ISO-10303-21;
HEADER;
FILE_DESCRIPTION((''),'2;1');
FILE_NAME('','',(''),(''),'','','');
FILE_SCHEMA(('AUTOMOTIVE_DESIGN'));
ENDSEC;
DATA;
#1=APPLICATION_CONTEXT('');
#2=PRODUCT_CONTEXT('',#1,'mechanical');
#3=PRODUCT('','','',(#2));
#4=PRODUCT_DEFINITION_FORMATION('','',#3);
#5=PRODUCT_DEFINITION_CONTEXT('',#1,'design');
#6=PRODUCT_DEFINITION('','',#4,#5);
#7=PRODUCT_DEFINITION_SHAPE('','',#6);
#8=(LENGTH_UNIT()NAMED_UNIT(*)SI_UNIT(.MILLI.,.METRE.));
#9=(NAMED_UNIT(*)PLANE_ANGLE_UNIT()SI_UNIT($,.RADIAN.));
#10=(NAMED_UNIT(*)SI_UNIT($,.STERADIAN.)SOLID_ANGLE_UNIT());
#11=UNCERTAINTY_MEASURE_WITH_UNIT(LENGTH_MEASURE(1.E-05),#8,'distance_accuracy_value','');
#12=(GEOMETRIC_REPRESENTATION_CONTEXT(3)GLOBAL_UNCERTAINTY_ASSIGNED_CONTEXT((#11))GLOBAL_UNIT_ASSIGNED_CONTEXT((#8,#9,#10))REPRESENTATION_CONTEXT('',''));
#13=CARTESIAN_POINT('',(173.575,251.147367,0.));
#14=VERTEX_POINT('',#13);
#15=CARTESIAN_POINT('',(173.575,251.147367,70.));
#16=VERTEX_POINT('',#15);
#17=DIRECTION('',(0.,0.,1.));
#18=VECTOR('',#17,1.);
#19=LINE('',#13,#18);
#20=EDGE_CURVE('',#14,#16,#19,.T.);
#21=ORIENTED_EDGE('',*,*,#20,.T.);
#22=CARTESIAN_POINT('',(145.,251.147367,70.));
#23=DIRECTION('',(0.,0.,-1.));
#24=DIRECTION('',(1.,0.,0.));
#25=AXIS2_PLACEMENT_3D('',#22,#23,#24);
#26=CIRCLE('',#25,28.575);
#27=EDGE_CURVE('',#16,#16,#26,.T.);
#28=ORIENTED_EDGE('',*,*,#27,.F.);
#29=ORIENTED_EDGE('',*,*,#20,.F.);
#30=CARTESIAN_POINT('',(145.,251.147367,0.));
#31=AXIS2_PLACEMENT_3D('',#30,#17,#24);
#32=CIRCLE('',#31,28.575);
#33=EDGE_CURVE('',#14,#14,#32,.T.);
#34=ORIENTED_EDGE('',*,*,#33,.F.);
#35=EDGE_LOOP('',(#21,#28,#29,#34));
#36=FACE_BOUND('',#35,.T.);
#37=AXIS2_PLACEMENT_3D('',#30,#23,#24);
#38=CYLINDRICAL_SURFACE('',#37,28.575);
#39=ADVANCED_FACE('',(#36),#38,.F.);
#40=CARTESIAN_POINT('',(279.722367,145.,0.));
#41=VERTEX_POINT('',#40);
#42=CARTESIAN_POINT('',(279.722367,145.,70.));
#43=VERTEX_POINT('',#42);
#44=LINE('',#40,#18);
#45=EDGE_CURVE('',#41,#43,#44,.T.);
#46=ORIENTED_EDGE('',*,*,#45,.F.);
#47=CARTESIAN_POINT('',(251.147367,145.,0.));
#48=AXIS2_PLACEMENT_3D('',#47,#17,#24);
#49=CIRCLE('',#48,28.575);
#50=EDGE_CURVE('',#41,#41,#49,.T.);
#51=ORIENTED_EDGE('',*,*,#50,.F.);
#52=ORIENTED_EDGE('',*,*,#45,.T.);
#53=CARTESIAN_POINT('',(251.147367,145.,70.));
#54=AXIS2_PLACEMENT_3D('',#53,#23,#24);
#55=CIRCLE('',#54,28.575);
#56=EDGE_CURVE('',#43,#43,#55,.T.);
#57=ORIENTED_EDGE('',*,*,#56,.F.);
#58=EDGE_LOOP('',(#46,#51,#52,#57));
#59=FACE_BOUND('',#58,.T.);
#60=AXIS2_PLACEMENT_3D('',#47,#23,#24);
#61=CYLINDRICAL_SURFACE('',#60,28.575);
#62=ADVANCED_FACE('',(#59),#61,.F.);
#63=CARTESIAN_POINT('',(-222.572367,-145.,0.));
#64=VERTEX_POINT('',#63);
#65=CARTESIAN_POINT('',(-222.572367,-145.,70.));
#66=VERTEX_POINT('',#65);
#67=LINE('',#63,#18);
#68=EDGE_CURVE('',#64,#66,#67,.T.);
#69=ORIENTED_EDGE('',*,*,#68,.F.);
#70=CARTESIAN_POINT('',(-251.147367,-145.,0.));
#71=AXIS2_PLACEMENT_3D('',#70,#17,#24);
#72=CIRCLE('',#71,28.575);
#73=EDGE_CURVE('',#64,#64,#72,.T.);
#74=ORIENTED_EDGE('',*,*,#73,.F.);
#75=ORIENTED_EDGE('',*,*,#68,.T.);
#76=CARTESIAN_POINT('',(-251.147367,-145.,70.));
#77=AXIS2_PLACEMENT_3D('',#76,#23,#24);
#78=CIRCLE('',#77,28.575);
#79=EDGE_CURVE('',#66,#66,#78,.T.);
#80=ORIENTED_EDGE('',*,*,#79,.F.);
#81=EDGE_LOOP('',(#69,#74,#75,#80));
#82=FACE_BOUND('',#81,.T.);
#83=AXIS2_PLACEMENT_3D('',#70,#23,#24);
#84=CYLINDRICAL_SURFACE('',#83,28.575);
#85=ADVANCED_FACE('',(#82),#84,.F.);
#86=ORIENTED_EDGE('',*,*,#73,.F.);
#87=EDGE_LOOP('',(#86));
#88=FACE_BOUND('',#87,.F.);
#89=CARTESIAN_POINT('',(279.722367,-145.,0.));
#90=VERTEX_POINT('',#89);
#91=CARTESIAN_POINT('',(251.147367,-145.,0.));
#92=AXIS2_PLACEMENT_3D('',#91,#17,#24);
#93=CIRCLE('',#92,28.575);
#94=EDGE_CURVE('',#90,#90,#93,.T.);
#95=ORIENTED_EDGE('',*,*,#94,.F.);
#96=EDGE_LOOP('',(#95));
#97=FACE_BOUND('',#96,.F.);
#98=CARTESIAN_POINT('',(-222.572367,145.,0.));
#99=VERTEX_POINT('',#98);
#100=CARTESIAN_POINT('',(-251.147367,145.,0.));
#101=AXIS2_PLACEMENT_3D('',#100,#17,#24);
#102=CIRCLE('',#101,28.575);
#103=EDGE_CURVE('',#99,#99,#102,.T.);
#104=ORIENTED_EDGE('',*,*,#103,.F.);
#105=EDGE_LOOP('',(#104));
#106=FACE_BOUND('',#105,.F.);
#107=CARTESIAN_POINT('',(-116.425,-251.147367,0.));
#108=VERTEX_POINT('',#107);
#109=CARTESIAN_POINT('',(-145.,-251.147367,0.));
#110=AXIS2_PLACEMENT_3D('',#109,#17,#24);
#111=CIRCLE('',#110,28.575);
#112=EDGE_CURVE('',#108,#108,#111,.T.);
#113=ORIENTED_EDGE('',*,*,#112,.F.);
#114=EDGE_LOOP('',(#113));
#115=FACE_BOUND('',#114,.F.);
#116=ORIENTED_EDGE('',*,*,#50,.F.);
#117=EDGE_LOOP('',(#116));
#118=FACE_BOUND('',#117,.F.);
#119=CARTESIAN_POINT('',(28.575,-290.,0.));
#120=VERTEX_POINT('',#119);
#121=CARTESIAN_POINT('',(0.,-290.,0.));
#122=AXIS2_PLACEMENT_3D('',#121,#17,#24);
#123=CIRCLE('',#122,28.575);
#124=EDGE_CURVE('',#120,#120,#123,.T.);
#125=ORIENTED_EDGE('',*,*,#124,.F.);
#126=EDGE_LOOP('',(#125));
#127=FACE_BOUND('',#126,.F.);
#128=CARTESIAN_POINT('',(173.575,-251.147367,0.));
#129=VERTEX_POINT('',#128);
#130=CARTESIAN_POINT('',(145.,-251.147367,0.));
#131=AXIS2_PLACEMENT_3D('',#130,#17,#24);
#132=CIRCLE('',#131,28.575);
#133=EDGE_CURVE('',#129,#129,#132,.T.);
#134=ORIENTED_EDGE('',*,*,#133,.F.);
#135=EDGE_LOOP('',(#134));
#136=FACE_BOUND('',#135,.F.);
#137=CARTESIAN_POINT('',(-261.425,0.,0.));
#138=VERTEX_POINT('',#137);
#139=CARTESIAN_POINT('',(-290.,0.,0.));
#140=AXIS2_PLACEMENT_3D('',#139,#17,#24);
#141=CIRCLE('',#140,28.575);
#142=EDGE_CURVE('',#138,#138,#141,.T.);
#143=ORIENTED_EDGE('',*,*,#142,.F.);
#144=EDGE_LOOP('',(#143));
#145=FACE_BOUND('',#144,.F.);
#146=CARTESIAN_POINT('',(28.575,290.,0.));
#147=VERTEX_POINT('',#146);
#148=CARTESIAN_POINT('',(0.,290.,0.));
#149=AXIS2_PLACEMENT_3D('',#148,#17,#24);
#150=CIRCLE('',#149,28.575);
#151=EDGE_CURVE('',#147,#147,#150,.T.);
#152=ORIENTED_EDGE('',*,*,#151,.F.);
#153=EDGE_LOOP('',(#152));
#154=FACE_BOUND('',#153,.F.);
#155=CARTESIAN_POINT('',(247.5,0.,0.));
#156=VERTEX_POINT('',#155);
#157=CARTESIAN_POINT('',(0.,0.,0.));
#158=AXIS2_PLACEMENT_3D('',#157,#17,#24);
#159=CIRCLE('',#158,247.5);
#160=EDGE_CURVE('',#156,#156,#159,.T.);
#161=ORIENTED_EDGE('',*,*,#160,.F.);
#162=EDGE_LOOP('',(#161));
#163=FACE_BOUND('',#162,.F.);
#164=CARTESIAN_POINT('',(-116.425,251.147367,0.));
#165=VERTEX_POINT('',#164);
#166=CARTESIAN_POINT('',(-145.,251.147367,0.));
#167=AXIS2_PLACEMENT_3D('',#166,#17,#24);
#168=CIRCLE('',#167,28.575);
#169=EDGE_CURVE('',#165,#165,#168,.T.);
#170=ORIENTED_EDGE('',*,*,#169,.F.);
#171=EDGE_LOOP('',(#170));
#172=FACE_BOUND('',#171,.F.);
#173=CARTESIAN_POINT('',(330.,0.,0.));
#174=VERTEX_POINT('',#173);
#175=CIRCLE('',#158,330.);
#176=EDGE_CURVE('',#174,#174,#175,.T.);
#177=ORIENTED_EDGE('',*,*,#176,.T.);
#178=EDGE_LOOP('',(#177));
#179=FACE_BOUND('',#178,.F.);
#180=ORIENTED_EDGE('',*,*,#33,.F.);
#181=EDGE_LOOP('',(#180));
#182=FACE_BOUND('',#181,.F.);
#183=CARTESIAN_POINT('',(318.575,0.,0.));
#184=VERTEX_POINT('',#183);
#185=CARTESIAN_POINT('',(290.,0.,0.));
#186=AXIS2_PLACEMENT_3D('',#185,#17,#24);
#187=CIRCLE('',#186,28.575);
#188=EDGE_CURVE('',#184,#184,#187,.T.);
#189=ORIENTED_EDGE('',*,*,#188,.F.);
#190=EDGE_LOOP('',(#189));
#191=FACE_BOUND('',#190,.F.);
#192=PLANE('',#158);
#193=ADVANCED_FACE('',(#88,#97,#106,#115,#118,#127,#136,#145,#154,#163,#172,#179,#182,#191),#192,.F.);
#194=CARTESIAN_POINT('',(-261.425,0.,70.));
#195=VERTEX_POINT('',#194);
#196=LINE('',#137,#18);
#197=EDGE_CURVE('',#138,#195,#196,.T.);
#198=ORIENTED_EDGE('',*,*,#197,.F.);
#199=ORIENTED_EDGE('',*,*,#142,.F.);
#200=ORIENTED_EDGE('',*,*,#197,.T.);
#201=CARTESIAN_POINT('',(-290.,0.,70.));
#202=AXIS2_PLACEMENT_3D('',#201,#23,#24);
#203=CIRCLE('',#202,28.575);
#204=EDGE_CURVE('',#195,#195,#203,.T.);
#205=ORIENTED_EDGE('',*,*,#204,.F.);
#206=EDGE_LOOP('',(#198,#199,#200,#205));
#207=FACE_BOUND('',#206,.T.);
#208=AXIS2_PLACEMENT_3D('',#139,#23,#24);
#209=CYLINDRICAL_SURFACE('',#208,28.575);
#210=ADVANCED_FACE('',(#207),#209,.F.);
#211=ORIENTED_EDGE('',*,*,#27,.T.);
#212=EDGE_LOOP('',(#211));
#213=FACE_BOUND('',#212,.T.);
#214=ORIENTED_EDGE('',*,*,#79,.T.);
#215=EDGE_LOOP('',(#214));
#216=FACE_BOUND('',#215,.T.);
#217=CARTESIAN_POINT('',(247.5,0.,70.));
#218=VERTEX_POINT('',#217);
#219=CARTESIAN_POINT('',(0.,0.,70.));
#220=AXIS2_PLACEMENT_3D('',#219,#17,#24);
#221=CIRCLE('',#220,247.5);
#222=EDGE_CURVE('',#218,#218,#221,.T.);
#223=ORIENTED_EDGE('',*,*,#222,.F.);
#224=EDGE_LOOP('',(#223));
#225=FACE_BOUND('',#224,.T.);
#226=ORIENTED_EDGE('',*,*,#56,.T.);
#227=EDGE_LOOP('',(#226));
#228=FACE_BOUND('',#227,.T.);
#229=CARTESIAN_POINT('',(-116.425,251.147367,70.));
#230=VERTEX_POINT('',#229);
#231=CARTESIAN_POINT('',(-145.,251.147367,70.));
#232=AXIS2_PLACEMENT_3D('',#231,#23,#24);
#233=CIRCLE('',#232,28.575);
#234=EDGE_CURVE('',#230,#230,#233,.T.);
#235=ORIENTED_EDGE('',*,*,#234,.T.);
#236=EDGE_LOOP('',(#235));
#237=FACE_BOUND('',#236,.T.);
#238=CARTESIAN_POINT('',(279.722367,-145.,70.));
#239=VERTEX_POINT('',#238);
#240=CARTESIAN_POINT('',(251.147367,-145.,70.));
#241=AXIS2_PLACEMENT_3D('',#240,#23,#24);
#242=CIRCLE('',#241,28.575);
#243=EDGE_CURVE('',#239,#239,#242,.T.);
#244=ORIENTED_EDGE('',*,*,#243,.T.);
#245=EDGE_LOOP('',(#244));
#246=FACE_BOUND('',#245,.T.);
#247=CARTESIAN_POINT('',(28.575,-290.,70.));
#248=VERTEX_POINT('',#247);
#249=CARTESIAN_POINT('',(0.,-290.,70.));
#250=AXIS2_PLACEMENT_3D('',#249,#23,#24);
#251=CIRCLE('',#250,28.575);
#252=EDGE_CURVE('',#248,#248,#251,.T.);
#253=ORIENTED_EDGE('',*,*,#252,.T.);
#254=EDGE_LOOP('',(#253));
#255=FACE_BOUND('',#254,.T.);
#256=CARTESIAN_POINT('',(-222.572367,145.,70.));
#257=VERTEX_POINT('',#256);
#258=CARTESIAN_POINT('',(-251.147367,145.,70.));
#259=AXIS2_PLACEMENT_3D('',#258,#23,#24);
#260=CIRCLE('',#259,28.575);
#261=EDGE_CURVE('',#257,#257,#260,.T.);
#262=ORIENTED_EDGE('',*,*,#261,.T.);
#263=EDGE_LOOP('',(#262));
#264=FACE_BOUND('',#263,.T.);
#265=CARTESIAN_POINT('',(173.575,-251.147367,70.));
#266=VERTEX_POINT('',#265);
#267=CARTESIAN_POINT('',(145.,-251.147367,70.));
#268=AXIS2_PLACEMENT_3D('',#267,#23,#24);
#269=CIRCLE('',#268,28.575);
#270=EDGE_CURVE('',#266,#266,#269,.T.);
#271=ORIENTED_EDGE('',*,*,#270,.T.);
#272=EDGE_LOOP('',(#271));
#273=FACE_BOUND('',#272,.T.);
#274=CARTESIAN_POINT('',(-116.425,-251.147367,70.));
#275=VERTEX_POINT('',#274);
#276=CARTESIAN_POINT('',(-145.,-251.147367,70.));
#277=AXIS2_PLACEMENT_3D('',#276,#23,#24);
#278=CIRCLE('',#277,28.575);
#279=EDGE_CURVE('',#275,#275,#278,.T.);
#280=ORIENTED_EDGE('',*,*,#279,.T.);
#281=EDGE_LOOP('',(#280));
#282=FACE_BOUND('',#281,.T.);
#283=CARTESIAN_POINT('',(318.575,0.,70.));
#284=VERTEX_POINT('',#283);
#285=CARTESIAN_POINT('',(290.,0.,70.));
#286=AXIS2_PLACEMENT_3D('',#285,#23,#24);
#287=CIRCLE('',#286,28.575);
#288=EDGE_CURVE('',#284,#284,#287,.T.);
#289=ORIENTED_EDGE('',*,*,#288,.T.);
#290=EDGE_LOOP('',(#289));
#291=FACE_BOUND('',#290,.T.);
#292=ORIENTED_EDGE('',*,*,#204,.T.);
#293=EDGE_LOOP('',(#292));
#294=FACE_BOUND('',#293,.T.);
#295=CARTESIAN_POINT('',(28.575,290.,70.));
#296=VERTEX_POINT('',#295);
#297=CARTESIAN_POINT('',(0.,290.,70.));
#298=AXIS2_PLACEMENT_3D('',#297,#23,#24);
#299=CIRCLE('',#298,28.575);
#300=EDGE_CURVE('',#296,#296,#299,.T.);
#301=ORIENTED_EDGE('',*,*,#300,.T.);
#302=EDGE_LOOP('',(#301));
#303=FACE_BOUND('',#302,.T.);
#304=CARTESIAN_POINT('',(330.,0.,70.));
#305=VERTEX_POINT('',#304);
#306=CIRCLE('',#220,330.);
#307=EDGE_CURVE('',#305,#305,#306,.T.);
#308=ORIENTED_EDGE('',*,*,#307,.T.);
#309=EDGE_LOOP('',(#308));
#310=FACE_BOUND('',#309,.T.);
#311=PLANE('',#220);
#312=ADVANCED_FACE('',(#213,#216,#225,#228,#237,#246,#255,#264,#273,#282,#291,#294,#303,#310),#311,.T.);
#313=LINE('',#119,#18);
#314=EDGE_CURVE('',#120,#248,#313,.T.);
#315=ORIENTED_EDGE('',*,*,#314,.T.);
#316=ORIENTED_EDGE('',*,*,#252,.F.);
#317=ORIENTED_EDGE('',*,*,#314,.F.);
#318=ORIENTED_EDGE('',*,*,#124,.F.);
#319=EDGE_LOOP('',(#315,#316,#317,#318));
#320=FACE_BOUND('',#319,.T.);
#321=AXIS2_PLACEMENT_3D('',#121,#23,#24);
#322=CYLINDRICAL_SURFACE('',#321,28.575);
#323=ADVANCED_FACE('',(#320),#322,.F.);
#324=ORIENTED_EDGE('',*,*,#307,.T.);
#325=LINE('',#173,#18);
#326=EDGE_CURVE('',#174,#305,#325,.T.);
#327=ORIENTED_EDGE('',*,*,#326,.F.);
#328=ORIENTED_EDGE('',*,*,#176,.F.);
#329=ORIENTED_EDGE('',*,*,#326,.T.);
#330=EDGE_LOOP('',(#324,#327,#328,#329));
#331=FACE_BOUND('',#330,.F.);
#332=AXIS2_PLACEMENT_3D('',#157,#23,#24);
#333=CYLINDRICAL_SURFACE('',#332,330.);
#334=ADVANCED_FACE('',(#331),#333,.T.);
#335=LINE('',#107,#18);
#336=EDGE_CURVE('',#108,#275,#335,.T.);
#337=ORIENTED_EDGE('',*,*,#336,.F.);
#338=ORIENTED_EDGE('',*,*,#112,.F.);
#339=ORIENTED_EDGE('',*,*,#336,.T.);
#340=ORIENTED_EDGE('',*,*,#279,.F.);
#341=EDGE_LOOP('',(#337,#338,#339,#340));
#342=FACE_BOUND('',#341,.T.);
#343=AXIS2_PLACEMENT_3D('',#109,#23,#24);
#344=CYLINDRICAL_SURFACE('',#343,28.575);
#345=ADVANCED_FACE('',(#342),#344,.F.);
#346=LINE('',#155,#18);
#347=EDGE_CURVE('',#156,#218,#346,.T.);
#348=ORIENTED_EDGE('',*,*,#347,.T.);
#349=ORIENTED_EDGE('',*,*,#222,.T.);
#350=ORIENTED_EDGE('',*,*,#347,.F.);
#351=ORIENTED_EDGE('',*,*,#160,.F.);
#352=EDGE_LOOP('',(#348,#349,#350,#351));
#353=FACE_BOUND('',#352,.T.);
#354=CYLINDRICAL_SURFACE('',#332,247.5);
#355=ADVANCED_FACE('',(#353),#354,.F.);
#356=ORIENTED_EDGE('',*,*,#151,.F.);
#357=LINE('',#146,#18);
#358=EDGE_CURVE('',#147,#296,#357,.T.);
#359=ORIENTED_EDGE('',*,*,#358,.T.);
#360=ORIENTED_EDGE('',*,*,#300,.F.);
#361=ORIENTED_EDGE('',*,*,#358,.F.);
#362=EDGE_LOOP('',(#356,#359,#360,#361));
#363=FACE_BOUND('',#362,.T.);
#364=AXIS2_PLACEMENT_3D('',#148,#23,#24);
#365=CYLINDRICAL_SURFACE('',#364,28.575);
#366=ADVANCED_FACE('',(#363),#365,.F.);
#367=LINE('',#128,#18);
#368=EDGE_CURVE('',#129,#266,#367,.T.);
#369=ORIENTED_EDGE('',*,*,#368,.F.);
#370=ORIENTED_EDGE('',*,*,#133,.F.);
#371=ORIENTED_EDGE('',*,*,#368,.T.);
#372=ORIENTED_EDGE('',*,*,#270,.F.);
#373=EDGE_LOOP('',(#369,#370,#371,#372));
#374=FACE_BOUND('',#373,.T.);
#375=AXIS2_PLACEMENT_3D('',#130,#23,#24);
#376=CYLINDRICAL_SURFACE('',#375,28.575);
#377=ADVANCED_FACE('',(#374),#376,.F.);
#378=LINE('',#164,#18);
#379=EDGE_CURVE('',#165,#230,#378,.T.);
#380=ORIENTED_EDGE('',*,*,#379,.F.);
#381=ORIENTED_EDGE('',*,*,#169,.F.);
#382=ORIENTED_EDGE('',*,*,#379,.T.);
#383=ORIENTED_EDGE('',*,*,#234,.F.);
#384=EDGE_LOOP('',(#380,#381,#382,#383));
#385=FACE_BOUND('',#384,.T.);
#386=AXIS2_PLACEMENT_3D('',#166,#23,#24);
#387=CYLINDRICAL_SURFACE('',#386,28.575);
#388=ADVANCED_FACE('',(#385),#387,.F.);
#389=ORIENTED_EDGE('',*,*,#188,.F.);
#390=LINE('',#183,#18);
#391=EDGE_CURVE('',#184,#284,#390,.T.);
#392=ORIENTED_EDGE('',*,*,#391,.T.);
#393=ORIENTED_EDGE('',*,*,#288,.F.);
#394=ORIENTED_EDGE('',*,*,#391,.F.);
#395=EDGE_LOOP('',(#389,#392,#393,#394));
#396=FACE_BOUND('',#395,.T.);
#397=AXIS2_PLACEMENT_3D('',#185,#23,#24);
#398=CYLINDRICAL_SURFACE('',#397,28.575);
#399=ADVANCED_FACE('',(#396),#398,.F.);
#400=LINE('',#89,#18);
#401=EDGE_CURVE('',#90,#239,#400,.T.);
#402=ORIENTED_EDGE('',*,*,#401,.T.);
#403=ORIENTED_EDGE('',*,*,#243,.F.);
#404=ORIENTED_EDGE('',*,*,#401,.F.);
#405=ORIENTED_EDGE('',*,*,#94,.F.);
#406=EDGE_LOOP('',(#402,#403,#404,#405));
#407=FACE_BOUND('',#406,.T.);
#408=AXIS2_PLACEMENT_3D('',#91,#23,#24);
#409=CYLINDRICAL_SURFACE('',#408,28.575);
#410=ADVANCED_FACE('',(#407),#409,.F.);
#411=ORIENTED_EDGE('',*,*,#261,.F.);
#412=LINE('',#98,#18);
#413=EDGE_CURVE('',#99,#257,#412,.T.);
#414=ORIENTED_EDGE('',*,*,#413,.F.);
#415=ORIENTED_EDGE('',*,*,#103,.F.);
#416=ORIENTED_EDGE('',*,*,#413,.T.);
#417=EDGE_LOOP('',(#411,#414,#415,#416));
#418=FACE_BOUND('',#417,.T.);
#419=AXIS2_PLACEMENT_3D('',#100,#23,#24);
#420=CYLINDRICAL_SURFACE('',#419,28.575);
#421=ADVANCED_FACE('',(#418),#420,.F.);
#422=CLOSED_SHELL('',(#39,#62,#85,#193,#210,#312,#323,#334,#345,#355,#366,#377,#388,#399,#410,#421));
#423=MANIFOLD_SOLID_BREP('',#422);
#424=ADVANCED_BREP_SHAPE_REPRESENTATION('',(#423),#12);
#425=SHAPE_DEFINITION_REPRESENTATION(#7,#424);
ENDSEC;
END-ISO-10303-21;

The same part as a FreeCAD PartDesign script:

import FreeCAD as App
import Part
import Sketcher

doc = App.newDocument("Part")
body = doc.addObject("PartDesign::Body", "Body")

# Sketch on XY plane
sketch1 = doc.addObject("Sketcher::SketchObject", "Sketch")
body.addObject(sketch1)
sketch1.AttachmentSupport = (doc.XY_Plane, [""])
sketch1.MapMode = "FlatFace"
sketch1.addGeometry(Part.Circle(App.Vector(0, 0, 0), App.Vector(0, 0, 1), 330), False)
sketch1.addGeometry(Part.Circle(App.Vector(0, 0, 0), App.Vector(0, 0, 1), 248), False)
sketch1.addConstraint(Sketcher.Constraint("Coincident", 0, 3, -1, 1))
sketch1.addConstraint(Sketcher.Constraint("Coincident", 1, 3, -1, 1))
sketch1.addConstraint(Sketcher.Constraint("Diameter", 0, 660.0))
sketch1.addConstraint(Sketcher.Constraint("Diameter", 1, 495.0))
pad1 = doc.addObject("PartDesign::Pad", "Pad")
body.addObject(pad1)
pad1.Profile = sketch1
pad1.Length = 70

# Sketch on XY plane
sketch2 = doc.addObject("Sketcher::SketchObject", "Sketch001")
body.addObject(sketch2)
sketch2.AttachmentSupport = (doc.XY_Plane, [""])
sketch2.MapMode = "FlatFace"
sketch2.addGeometry(Part.Circle(App.Vector(0, 290, 0), App.Vector(0, 0, 1), 29), False)
sketch2.addGeometry(Part.Circle(App.Vector(145, 251, 0), App.Vector(0, 0, 1), 29), False)
sketch2.addGeometry(Part.Circle(App.Vector(251, 145, 0), App.Vector(0, 0, 1), 29), False)
sketch2.addGeometry(Part.Circle(App.Vector(290, 0, 0), App.Vector(0, 0, 1), 29), False)
sketch2.addGeometry(Part.Circle(App.Vector(251, -145, 0), App.Vector(0, 0, 1), 29), False)
sketch2.addGeometry(Part.Circle(App.Vector(145, -251, 0), App.Vector(0, 0, 1), 29), False)
sketch2.addGeometry(Part.Circle(App.Vector(0, -290, 0), App.Vector(0, 0, 1), 29), False)
sketch2.addGeometry(Part.Circle(App.Vector(-145, -251, 0), App.Vector(0, 0, 1), 29), False)
sketch2.addGeometry(Part.Circle(App.Vector(-251, -145, 0), App.Vector(0, 0, 1), 29), False)
sketch2.addGeometry(Part.Circle(App.Vector(-290, 0, 0), App.Vector(0, 0, 1), 29), False)
sketch2.addGeometry(Part.Circle(App.Vector(-251, 145, 0), App.Vector(0, 0, 1), 29), False)
sketch2.addGeometry(Part.Circle(App.Vector(-145, 251, 0), App.Vector(0, 0, 1), 29), False)
sketch2.addConstraint(Sketcher.Constraint("Equal", 0, 1))
sketch2.addConstraint(Sketcher.Constraint("Equal", 1, 2))
sketch2.addConstraint(Sketcher.Constraint("Equal", 2, 3))
sketch2.addConstraint(Sketcher.Constraint("Equal", 3, 4))
sketch2.addConstraint(Sketcher.Constraint("Equal", 4, 5))
sketch2.addConstraint(Sketcher.Constraint("Equal", 5, 6))
sketch2.addConstraint(Sketcher.Constraint("Equal", 6, 7))
sketch2.addConstraint(Sketcher.Constraint("Equal", 7, 8))
sketch2.addConstraint(Sketcher.Constraint("Equal", 8, 9))
sketch2.addConstraint(Sketcher.Constraint("Equal", 9, 10))
sketch2.addConstraint(Sketcher.Constraint("Equal", 10, 11))
sketch2.addConstraint(Sketcher.Constraint("Symmetric", 0, 3, 6, 3, -1, 1))
sketch2.addConstraint(Sketcher.Constraint("Symmetric", 1, 3, 7, 3, -1, 1))
sketch2.addConstraint(Sketcher.Constraint("Symmetric", 2, 3, 8, 3, -1, 1))
sketch2.addConstraint(Sketcher.Constraint("Symmetric", 3, 3, 9, 3, -1, 1))
sketch2.addConstraint(Sketcher.Constraint("Symmetric", 4, 3, 10, 3, -1, 1))
sketch2.addConstraint(Sketcher.Constraint("Symmetric", 5, 3, 11, 3, -1, 1))
sketch2.addConstraint(Sketcher.Constraint("Symmetric", 5, 3, 7, 3, -2))
sketch2.addConstraint(Sketcher.Constraint("Symmetric", 4, 3, 8, 3, -2))
sketch2.addConstraint(Sketcher.Constraint("PointOnObject", 0, 3, -2))
sketch2.addConstraint(Sketcher.Constraint("PointOnObject", 3, 3, -1))
sketch2.addConstraint(Sketcher.Constraint("Diameter", 0, 57.15))
sketch2.addConstraint(Sketcher.Constraint("DistanceY", -1, 1, 0, 3, 290.0))
sketch2.addConstraint(Sketcher.Constraint("DistanceX", -1, 1, 1, 3, 145.0))
sketch2.addConstraint(Sketcher.Constraint("DistanceY", -1, 1, 2, 3, 145.0))
sketch2.addConstraint(Sketcher.Constraint("DistanceX", -1, 1, 3, 3, 290.0))
sketch2.addConstraint(Sketcher.Constraint("DistanceY", -1, 1, 1, 3, 251.147367))
sketch2.addConstraint(Sketcher.Constraint("DistanceX", -1, 1, 2, 3, 251.147367))
pocket1 = doc.addObject("PartDesign::Pocket", "Pocket")
body.addObject(pocket1)
pocket1.Profile = sketch2
pocket1.Length = 131
pocket1.Reversed = True

doc.recompute()
